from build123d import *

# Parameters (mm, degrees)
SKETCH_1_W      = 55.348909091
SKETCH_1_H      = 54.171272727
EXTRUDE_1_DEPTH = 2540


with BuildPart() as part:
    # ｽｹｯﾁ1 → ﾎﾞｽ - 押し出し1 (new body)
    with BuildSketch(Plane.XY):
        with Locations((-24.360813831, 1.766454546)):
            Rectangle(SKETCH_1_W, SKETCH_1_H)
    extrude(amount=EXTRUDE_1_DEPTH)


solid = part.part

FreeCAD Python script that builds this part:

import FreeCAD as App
import Part
import Sketcher

V = App.Vector


def add_polygon(sketch, points):
    """Adds a closed chain of lines whose ends are joined by coincident constraints."""
    first, n = sketch.GeometryCount, len(points)
    for a, b in zip(points, points[1:] + points[:1]):
        sketch.addGeometry(Part.LineSegment(App.Vector(*a, 0), App.Vector(*b, 0)), False)
    for i in range(n):
        sketch.addConstraint(Sketcher.Constraint("Coincident", first + i, 2, first + (i + 1) % n, 1))

doc = App.newDocument("Part")
params = doc.addObject("Spreadsheet::Sheet", "Params")
for row, (alias, value) in enumerate([
    ("pad1_length", "100 in"),
], start=1):
    params.set(f"A{row}", alias)
    params.set(f"B{row}", "=" + value)
    params.setAlias(f"B{row}", alias)

body = doc.addObject("PartDesign::Body", "Body")

sketch1 = body.newObject("Sketcher::SketchObject", "Sketch")
sketch1.AttachmentSupport = (doc.getObject("XY_Plane"), [""])
sketch1.MapMode = "FlatFace"
add_polygon(sketch1, [(-52, 29), (-52, -25), (3, -25), (3, 29)])
sketch1.addConstraint([
    Sketcher.Constraint("Vertical", 0),
    Sketcher.Constraint("Horizontal", 1),
    Sketcher.Constraint("Vertical", 2),
    Sketcher.Constraint("Horizontal", 3),
    Sketcher.Constraint("DistanceX", 1, 1, 1, 2, 55.348909),
    Sketcher.Constraint("DistanceY", 0, 2, 0, 1, 54.171273),
    Sketcher.Constraint("DistanceX", 0, 2, -1, 1, 52.035268),
    Sketcher.Constraint("DistanceY", 0, 2, -1, 1, 25.319182),
])
pad1 = body.newObject("PartDesign::Pad", "Pad")
pad1.Profile = sketch1
pad1.setExpression("Length", "Params.pad1_length")

doc.recompute()
